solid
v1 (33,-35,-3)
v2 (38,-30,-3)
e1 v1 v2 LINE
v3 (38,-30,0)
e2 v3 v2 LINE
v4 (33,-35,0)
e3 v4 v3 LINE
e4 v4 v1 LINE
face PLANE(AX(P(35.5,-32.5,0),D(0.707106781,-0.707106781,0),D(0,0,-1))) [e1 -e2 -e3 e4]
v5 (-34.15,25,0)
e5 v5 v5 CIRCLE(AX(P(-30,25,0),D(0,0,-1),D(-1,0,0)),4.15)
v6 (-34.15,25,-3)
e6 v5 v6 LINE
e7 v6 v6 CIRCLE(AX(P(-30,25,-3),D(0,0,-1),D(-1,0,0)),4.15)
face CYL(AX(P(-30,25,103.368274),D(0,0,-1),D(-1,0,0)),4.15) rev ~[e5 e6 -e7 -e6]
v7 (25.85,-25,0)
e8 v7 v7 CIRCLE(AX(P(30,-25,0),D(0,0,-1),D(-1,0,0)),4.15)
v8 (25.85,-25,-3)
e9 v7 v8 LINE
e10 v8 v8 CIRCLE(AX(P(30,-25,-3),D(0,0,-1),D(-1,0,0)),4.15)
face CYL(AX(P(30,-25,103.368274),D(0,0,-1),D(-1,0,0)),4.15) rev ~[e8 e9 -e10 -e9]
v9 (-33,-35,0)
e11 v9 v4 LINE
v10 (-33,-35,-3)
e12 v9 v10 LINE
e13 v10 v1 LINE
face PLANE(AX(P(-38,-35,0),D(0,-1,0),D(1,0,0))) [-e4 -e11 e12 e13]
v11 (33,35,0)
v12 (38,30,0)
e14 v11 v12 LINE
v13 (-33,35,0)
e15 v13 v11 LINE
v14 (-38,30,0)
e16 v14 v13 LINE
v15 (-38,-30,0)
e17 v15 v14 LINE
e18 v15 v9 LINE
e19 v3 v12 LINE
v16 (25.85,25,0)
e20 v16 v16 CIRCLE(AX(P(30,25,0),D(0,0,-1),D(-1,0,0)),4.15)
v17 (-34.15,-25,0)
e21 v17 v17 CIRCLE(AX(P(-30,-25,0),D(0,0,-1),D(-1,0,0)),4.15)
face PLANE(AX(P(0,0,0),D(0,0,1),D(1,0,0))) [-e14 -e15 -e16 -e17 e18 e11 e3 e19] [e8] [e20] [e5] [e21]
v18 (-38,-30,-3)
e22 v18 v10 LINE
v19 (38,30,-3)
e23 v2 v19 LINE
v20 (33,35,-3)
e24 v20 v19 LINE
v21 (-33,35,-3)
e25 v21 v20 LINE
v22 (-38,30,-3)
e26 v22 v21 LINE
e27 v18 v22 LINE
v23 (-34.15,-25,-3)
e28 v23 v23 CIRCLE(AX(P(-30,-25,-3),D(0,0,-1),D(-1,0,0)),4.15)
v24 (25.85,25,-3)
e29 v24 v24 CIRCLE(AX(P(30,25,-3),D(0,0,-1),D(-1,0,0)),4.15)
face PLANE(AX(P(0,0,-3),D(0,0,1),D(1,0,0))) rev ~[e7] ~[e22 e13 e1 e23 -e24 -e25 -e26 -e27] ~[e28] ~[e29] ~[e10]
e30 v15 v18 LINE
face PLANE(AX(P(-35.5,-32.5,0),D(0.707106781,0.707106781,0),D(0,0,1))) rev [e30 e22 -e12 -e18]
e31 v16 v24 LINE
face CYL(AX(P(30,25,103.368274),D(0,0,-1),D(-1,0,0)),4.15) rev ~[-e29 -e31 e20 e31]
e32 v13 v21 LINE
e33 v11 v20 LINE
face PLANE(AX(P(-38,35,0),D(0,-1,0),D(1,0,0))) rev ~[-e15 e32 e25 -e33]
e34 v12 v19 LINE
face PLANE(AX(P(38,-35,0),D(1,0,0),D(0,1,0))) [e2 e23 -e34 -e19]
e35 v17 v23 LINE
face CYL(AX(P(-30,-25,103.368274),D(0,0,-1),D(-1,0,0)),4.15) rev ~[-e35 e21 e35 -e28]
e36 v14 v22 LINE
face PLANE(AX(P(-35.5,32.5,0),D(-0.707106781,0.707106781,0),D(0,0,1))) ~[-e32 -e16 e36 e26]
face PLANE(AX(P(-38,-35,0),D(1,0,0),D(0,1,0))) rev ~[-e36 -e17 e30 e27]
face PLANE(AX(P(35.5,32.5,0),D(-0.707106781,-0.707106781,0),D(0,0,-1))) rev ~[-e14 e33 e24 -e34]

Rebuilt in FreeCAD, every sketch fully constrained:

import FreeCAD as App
import Part
import Sketcher
from FreeCAD import Vector


def edges_at(feature, points):
    """Names of the edges that pass closest to the given points."""
    edges = feature.Shape.Edges
    near = lambda p: min(range(len(edges)), key=lambda i: edges[i].distToShape(Part.Vertex(*p))[0])
    return sorted({f"Edge{near(p) + 1}" for p in points})

doc = App.newDocument("Part")
body = doc.addObject("PartDesign::Body", "Body")

sketch1 = body.newObject("Sketcher::SketchObject", "Sketch")
sketch1.AttachmentSupport = (doc.getObject("XY_Plane"), [""])
sketch1.MapMode = "FlatFace"
sketch1.addGeometry(Part.LineSegment(Vector(-38, 35, 0), Vector(-38, -35, 0)), False)
sketch1.addGeometry(Part.LineSegment(Vector(-38, -35, 0), Vector(38, -35, 0)), False)
sketch1.addGeometry(Part.LineSegment(Vector(38, -35, 0), Vector(38, 35, 0)), False)
sketch1.addGeometry(Part.LineSegment(Vector(38, 35, 0), Vector(-38, 35, 0)), False)
sketch1.addConstraint(Sketcher.Constraint("Coincident", 0, 2, 1, 1))
sketch1.addConstraint(Sketcher.Constraint("Coincident", 1, 2, 2, 1))
sketch1.addConstraint(Sketcher.Constraint("Coincident", 2, 2, 3, 1))
sketch1.addConstraint(Sketcher.Constraint("Coincident", 3, 2, 0, 1))
sketch1.addConstraint(Sketcher.Constraint("Vertical", 0))
sketch1.addConstraint(Sketcher.Constraint("Horizontal", 1))
sketch1.addConstraint(Sketcher.Constraint("Vertical", 2))
sketch1.addConstraint(Sketcher.Constraint("Horizontal", 3))
sketch1.addConstraint(Sketcher.Constraint("Symmetric", 0, 2, 2, 2, -1, 1))
sketch1.addConstraint(Sketcher.Constraint("DistanceX", 1, 1, 1, 2, 76.0))
sketch1.addConstraint(Sketcher.Constraint("DistanceY", 0, 2, 0, 1, 70.0))
pad1 = body.newObject("PartDesign::Pad", "Pad")
pad1.Profile = sketch1
pad1.Length = 3
pad1.Reversed = True

sketch2 = body.newObject("Sketcher::SketchObject", "Sketch001")
sketch2.AttachmentSupport = (doc.getObject("XY_Plane"), [""])
sketch2.MapMode = "FlatFace"
sketch2.addGeometry(Part.Circle(Vector(-30, 25, 0), Vector(0, 0, 1), 4.2), False)
sketch2.addGeometry(Part.Circle(Vector(30, 25, 0), Vector(0, 0, 1), 4.2), False)
sketch2.addGeometry(Part.Circle(Vector(30, -25, 0), Vector(0, 0, 1), 4.2), False)
sketch2.addGeometry(Part.Circle(Vector(-30, -25, 0), Vector(0, 0, 1), 4.2), False)
sketch2.addConstraint(Sketcher.Constraint("Equal", 0, 1))
sketch2.addConstraint(Sketcher.Constraint("Equal", 1, 2))
sketch2.addConstraint(Sketcher.Constraint("Equal", 2, 3))
sketch2.addConstraint(Sketcher.Constraint("Symmetric", 0, 3, 2, 3, -1, 1))
sketch2.addConstraint(Sketcher.Constraint("Symmetric", 1, 3, 3, 3, -1, 1))
sketch2.addConstraint(Sketcher.Constraint("Symmetric", 0, 3, 1, 3, -2))
sketch2.addConstraint(Sketcher.Constraint("Diameter", 0, 8.3))
sketch2.addConstraint(Sketcher.Constraint("DistanceX", 0, 3, -1, 1, 30.0))
sketch2.addConstraint(Sketcher.Constraint("DistanceY", -1, 1, 0, 3, 25.0))
doc.recompute()
hole = body.newObject("PartDesign::Hole", "Hole")
hole.Profile = sketch2
hole.ThreadType = "None"
hole.Diameter = 8.3
hole.DepthType = "ThroughAll"
doc.recompute()

chamfer = body.newObject("PartDesign::Chamfer", "Chamfer")
chamfer.Base = (hole, edges_at(hole, [
    (-38, 35, -1.5),
    (-38, -35, -1.5),
    (38, -35, -1.5),
    (38, 35, -1.5),
]))
chamfer.Size = 5

doc.recompute()
